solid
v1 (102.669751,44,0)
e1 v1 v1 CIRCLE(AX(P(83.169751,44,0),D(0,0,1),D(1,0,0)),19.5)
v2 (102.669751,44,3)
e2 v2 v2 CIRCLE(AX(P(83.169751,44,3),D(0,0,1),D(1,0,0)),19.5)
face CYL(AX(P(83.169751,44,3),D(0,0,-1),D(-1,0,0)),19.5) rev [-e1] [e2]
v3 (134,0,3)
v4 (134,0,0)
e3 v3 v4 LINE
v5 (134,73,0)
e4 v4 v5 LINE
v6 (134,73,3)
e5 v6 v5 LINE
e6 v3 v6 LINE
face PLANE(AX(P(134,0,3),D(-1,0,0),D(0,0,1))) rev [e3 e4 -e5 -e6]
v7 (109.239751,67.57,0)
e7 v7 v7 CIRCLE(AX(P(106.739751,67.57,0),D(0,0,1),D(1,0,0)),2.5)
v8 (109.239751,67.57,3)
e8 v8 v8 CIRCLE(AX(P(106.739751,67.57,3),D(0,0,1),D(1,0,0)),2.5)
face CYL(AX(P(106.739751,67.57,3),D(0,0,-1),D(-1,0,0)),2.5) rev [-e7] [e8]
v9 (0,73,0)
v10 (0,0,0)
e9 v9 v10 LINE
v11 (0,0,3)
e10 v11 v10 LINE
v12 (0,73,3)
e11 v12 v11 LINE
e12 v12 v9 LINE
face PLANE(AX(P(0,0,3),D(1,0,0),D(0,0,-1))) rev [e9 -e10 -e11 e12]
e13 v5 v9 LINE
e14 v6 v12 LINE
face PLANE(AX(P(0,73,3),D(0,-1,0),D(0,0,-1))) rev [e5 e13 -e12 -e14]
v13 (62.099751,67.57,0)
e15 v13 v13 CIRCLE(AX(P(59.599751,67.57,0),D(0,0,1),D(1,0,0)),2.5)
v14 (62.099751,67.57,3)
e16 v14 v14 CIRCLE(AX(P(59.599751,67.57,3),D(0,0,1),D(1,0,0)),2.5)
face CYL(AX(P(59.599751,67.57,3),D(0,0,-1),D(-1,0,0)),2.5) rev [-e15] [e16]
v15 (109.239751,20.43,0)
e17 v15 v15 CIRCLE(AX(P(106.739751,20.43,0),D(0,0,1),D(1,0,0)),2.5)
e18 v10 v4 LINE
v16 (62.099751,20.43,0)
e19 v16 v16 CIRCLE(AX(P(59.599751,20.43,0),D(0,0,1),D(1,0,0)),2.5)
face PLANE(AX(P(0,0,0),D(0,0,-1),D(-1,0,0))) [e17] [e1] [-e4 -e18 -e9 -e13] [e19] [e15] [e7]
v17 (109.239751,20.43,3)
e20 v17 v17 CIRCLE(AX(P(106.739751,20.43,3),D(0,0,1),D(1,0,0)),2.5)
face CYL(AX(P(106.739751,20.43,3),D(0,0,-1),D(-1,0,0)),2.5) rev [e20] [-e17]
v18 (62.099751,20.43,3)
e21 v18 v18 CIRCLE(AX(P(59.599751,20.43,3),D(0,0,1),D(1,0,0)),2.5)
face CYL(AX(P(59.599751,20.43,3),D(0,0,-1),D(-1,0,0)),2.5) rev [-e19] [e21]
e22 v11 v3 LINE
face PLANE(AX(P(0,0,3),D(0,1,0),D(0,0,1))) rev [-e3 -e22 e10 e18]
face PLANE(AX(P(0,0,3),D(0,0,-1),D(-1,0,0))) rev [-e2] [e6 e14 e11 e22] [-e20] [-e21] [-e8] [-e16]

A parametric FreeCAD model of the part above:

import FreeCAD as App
import Part
import Sketcher

V = App.Vector
Q = App.Units.Quantity


def add_polygon(sketch, points):
    """Adds a closed chain of lines whose ends are joined by coincident constraints."""
    first, n = sketch.GeometryCount, len(points)
    for a, b in zip(points, points[1:] + points[:1]):
        sketch.addGeometry(Part.LineSegment(App.Vector(*a, 0), App.Vector(*b, 0)), False)
    for i in range(n):
        sketch.addConstraint(Sketcher.Constraint("Coincident", first + i, 2, first + (i + 1) % n, 1))

doc = App.newDocument("Part")
body = doc.addObject("PartDesign::Body", "Body")

# Sketch on XY plane
sketch1 = doc.addObject("Sketcher::SketchObject", "Sketch")
body.addObject(sketch1)
sketch1.AttachmentSupport = (doc.XY_Plane, [""])
sketch1.MapMode = "FlatFace"
add_polygon(sketch1, [(0, 73), (0, 0), (134, 0), (134, 73)])  # lines 0-3
sketch1.addGeometry(Part.Circle(V(59.599751, 20.43, 0), V(0, 0, 1), 2.5), False)  # 4
sketch1.addGeometry(Part.Circle(V(106.739751, 20.43, 0), V(0, 0, 1), 2.5), False)  # 5
sketch1.addGeometry(Part.Circle(V(59.599751, 67.57, 0), V(0, 0, 1), 2.5), False)  # 6
sketch1.addGeometry(Part.Circle(V(83.169751, 44, 0), V(0, 0, 1), 19.5), False)  # 7
sketch1.addGeometry(Part.Circle(V(106.739751, 67.57, 0), V(0, 0, 1), 2.5), False)  # 8
sketch1.addConstraint([
    Sketcher.Constraint("Vertical", 0),
    Sketcher.Constraint("Horizontal", 1),
    Sketcher.Constraint("Vertical", 2),
    Sketcher.Constraint("Horizontal", 3),
    Sketcher.Constraint("Coincident", 0, 2, -1, 1),
    Sketcher.Constraint("Equal", 4, 5),
    Sketcher.Constraint("Equal", 5, 6),
    Sketcher.Constraint("Equal", 6, 8),
    Sketcher.Constraint("Horizontal", 4, 3, 5, 3),
    Sketcher.Constraint("Horizontal", 6, 3, 8, 3),
    Sketcher.Constraint("Vertical", 4, 3, 6, 3),
    Sketcher.Constraint("Vertical", 5, 3, 8, 3),
    Sketcher.Constraint("Diameter", 4, Q("5 mm")),
    Sketcher.Constraint("Diameter", 7, Q("39 mm")),
    Sketcher.Constraint("DistanceX", 1, 1, 1, 2, Q("134 mm")),
    Sketcher.Constraint("DistanceY", 0, 2, 0, 1, Q("73 mm")),
    Sketcher.Constraint("DistanceY", -1, 1, 7, 3, Q("44 mm")),
    Sketcher.Constraint("DistanceY", -1, 1, 4, 3, Q("20.43 mm")),
    Sketcher.Constraint("DistanceY", -1, 1, 6, 3, Q("67.57 mm")),
    Sketcher.Constraint("DistanceX", 4, 3, 5, 3, Q("47.14 mm")),
    Sketcher.Constraint("DistanceX", 7, 3, 5, 3, Q("23.57 mm")),
    Sketcher.Constraint("DistanceX", -1, 1, 4, 3, Q("59.599751 mm")),
])
pad1 = doc.addObject("PartDesign::Pad", "Pad")
body.addObject(pad1)
pad1.Profile = sketch1
pad1.Length = 3

doc.recompute()
